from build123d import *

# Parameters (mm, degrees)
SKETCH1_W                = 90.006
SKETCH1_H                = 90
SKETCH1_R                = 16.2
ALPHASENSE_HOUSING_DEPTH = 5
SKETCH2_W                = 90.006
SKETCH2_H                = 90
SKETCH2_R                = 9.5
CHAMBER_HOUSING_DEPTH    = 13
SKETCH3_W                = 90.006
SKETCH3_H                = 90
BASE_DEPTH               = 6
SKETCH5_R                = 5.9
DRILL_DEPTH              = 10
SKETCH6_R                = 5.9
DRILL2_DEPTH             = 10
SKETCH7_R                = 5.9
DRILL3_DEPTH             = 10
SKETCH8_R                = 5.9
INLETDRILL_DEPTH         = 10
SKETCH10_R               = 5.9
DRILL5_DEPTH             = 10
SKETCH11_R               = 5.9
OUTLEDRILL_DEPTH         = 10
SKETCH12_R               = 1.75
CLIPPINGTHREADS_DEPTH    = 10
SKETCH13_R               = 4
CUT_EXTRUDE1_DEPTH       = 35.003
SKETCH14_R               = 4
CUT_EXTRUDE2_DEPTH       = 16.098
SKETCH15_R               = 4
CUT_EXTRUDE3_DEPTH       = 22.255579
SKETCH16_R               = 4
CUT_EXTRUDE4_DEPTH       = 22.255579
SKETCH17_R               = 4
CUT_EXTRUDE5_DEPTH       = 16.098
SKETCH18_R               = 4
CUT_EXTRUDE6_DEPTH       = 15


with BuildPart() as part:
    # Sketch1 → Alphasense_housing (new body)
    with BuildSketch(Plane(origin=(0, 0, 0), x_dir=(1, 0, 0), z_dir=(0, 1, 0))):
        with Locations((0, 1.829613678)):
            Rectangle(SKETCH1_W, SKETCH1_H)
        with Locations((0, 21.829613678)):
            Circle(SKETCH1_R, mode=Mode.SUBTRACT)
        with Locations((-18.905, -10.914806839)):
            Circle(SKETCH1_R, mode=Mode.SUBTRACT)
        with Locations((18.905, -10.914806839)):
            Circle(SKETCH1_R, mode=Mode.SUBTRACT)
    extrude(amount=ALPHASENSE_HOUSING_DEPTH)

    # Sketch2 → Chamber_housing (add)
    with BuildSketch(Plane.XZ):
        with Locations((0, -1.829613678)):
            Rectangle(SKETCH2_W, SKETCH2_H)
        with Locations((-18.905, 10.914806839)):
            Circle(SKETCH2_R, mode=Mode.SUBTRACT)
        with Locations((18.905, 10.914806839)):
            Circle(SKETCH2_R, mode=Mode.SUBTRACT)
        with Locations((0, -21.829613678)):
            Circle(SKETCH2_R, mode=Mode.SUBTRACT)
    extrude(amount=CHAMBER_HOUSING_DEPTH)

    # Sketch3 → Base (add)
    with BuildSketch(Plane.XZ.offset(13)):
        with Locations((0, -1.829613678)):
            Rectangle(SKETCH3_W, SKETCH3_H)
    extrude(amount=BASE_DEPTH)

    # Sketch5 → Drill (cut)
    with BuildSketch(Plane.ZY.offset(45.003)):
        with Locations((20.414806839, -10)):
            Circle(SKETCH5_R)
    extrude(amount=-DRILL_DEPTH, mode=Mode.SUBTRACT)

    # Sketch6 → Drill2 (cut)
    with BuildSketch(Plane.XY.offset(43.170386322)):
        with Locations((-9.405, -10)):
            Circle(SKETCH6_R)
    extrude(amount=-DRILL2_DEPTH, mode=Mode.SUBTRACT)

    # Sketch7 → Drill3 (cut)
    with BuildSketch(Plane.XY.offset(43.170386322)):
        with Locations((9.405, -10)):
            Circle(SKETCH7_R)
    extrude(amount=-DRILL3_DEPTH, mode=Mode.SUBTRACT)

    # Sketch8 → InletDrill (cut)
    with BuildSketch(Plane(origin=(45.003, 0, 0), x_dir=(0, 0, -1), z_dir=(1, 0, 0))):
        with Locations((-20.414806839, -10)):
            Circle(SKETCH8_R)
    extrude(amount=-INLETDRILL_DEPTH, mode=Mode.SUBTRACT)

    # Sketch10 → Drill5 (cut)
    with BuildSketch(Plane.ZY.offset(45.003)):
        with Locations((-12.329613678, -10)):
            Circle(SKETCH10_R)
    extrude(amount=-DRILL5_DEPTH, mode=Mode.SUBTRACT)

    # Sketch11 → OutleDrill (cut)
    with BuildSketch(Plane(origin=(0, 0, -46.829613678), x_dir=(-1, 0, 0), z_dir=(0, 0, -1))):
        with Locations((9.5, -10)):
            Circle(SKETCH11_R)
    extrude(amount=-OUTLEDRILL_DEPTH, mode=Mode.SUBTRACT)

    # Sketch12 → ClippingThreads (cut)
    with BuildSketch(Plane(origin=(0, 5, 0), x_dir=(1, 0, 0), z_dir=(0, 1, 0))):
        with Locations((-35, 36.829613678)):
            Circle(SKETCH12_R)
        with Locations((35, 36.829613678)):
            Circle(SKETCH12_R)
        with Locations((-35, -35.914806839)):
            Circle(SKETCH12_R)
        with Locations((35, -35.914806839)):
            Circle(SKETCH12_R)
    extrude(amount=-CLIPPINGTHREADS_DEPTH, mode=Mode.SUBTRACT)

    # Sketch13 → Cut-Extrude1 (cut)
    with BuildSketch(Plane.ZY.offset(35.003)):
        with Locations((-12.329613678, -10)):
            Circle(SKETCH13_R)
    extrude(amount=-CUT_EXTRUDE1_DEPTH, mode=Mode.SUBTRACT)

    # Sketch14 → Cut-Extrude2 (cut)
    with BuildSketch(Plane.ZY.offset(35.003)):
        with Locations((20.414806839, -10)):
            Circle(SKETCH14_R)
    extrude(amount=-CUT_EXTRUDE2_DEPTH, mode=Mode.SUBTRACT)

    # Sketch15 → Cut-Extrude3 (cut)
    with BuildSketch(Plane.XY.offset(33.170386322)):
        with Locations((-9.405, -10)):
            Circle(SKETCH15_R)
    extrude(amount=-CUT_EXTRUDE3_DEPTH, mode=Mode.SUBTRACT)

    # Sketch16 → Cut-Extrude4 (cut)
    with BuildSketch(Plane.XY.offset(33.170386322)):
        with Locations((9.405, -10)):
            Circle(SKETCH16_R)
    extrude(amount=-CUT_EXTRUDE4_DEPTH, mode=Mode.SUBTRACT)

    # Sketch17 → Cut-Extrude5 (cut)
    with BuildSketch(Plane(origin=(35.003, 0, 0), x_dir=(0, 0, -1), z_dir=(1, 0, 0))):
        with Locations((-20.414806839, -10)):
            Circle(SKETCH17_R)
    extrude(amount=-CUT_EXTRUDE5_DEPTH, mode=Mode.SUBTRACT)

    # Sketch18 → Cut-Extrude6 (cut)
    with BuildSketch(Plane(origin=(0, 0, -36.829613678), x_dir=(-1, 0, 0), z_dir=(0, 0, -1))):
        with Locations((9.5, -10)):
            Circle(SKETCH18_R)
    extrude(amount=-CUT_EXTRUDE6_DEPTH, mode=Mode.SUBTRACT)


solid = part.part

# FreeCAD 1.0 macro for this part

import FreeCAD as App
import Part
import Sketcher

V = App.Vector

doc = App.newDocument("Part")
params = doc.addObject("Spreadsheet::Sheet", "Params")
for row, (alias, value) in enumerate([
    ("sketch1_diameter", "32.4 mm"),
    ("sketch1_height", "90 mm"),
    ("pad1_length", "5 mm"),
    ("sketch2_diameter", "19 mm"),
    ("sketch2_height", "90 mm"),
    ("pad2_length", "13 mm"),
    ("sketch3_height", "90 mm"),
    ("pad3_length", "6 mm"),
    ("sketch4_diameter", "11.8 mm"),
    ("pocket1_length", "10 mm"),
    ("sketch5_diameter", "11.8 mm"),
    ("pocket2_length", "10 mm"),
    ("sketch6_diameter", "11.8 mm"),
    ("pocket3_length", "10 mm"),
    ("sketch7_diameter", "11.8 mm"),
    ("pocket4_length", "10 mm"),
    ("sketch8_diameter", "11.8 mm"),
    ("pocket5_length", "10 mm"),
    ("sketch9_diameter", "11.8 mm"),
    ("pocket6_length", "10 mm"),
    ("sketch10_diameter", "3.5 mm"),
    ("pocket7_length", "10 mm"),
    ("sketch11_diameter", "8 mm"),
    ("pocket8_length", "35.003 mm"),
    ("sketch12_diameter", "8 mm"),
    ("pocket9_length", "16.098 mm"),
    ("sketch13_diameter", "8 mm"),
    ("pocket10_length", "22.255579 mm"),
    ("sketch14_diameter", "8 mm"),
    ("pocket11_length", "22.255579 mm"),
    ("sketch15_diameter", "8 mm"),
    ("pocket12_length", "16.098 mm"),
    ("sketch16_diameter", "8 mm"),
    ("pocket13_length", "15 mm"),
], start=1):
    params.set(f"A{row}", alias)
    params.set(f"B{row}", "=" + value)
    params.setAlias(f"B{row}", alias)

body = doc.addObject("PartDesign::Body", "Body")

# Sketch on XZ plane
sketch1 = body.newObject("Sketcher::SketchObject", "Sketch")
sketch1.AttachmentSupport = (doc.getObject("XZ_Plane"), [""])
sketch1.MapMode = "FlatFace"
sketch1.addGeometry([
    Part.LineSegment(V(-45.003, -46.829614, 0), V(-45.003, 43.170386, 0)),  # 0
    Part.LineSegment(V(-45.003, 43.170386, 0), V(45.003, 43.170386, 0)),  # 1
    Part.LineSegment(V(45.003, 43.170386, 0), V(45.003, -46.829614, 0)),  # 2
    Part.LineSegment(V(45.003, -46.829614, 0), V(-45.003, -46.829614, 0)),  # 3
    Part.Circle(V(-18.905, 10.914807, 0), V(0, 0, 1), 16.2),  # 4
    Part.Circle(V(18.905, 10.914807, 0), V(0, 0, 1), 16.2),  # 5
    Part.Circle(V(0, -21.829614, 0), V(0, 0, 1), 16.2),  # 6
], False)
sketch1.addConstraint([
    Sketcher.Constraint("Coincident", 0, 2, 1, 1),
    Sketcher.Constraint("Coincident", 1, 2, 2, 1),
    Sketcher.Constraint("Coincident", 2, 2, 3, 1),
    Sketcher.Constraint("Coincident", 3, 2, 0, 1),
    Sketcher.Constraint("Vertical", 0),
    Sketcher.Constraint("Horizontal", 1),
    Sketcher.Constraint("Vertical", 2),
    Sketcher.Constraint("Horizontal", 3),
    Sketcher.Constraint("Equal", 4, 5),
    Sketcher.Constraint("Equal", 5, 6),
    Sketcher.Constraint("Symmetric", 4, 3, 5, 3, -2),
    Sketcher.Constraint("PointOnObject", 6, 3, -2),
    Sketcher.Constraint("Diameter", 4, 32.4),
    Sketcher.Constraint("DistanceY", 0, 1, 0, 2, 90.0),
    Sketcher.Constraint("DistanceY", 6, 3, 0, 2, 65.0),
    Sketcher.Constraint("DistanceX", 1, 1, 1, 2, 90.006),
    Sketcher.Constraint("DistanceX", 4, 3, 5, 3, 37.81),
    Sketcher.Constraint("DistanceX", 0, 2, -1, 1, 45.003),
    Sketcher.Constraint("DistanceY", 6, 3, 4, 3, 32.744421),
    Sketcher.Constraint("DistanceY", -1, 1, 4, 3, 10.914807),
])
sketch1.setExpression("Constraints[12]", "Params.sketch1_diameter")
sketch1.setExpression("Constraints[13]", "Params.sketch1_height")
pad1 = body.newObject("PartDesign::Pad", "Pad")
pad1.Profile = sketch1
pad1.setExpression("Length", "Params.pad1_length")
pad1.Reversed = True

# Sketch on XZ plane
sketch2 = body.newObject("Sketcher::SketchObject", "Sketch001")
sketch2.AttachmentSupport = (doc.getObject("XZ_Plane"), [""])
sketch2.MapMode = "FlatFace"
sketch2.addGeometry([
    Part.LineSegment(V(-45.003, 43.170386, 0), V(-45.003, -46.829614, 0)),  # 0
    Part.LineSegment(V(-45.003, -46.829614, 0), V(45.003, -46.829614, 0)),  # 1
    Part.LineSegment(V(45.003, -46.829614, 0), V(45.003, 43.170386, 0)),  # 2
    Part.LineSegment(V(45.003, 43.170386, 0), V(-45.003, 43.170386, 0)),  # 3
    Part.Circle(V(0, -21.829614, 0), V(0, 0, 1), 9.5),  # 4
    Part.Circle(V(-18.905, 10.914807, 0), V(0, 0, 1), 9.5),  # 5
    Part.Circle(V(18.905, 10.914807, 0), V(0, 0, 1), 9.5),  # 6
], False)
sketch2.addConstraint([
    Sketcher.Constraint("Coincident", 0, 2, 1, 1),
    Sketcher.Constraint("Coincident", 1, 2, 2, 1),
    Sketcher.Constraint("Coincident", 2, 2, 3, 1),
    Sketcher.Constraint("Coincident", 3, 2, 0, 1),
    Sketcher.Constraint("Vertical", 0),
    Sketcher.Constraint("Horizontal", 1),
    Sketcher.Constraint("Vertical", 2),
    Sketcher.Constraint("Horizontal", 3),
    Sketcher.Constraint("Equal", 4, 5),
    Sketcher.Constraint("Equal", 5, 6),
    Sketcher.Constraint("Symmetric", 5, 3, 6, 3, -2),
    Sketcher.Constraint("PointOnObject", 4, 3, -2),
    Sketcher.Constraint("Diameter", 4, 19.0),
    Sketcher.Constraint("DistanceY", 0, 2, 0, 1, 90.0),
    Sketcher.Constraint("DistanceY", 0, 2, 4, 3, 25.0),
    Sketcher.Constraint("DistanceX", 1, 1, 1, 2, 90.006),
    Sketcher.Constraint("DistanceX", 5, 3, 6, 3, 37.81),
    Sketcher.Constraint("DistanceX", 0, 2, -1, 1, 45.003),
    Sketcher.Constraint("DistanceY", 4, 3, 5, 3, 32.744421),
    Sketcher.Constraint("DistanceY", 4, 3, -1, 1, 21.829614),
])
sketch2.setExpression("Constraints[12]", "Params.sketch2_diameter")
sketch2.setExpression("Constraints[13]", "Params.sketch2_height")
pad2 = body.newObject("PartDesign::Pad", "Pad001")
pad2.Profile = sketch2
pad2.setExpression("Length", "Params.pad2_length")

# Sketch on XZ plane
sketch3 = body.newObject("Sketcher::SketchObject", "Sketch002")
sketch3.AttachmentSupport = (doc.getObject("XZ_Plane"), [""])
sketch3.MapMode = "FlatFace"
sketch3.AttachmentOffset = App.Placement(V(0, 0, 13), App.Rotation())
sketch3.addGeometry([
    Part.LineSegment(V(-45.003, 43.170386, 0), V(-45.003, -46.829614, 0)),
    Part.LineSegment(V(-45.003, -46.829614, 0), V(45.003, -46.829614, 0)),
    Part.LineSegment(V(45.003, -46.829614, 0), V(45.003, 43.170386, 0)),
    Part.LineSegment(V(45.003, 43.170386, 0), V(-45.003, 43.170386, 0)),
], False)
sketch3.addConstraint([
    Sketcher.Constraint("Coincident", 0, 2, 1, 1),
    Sketcher.Constraint("Coincident", 1, 2, 2, 1),
    Sketcher.Constraint("Coincident", 2, 2, 3, 1),
    Sketcher.Constraint("Coincident", 3, 2, 0, 1),
    Sketcher.Constraint("Vertical", 0),
    Sketcher.Constraint("Horizontal", 1),
    Sketcher.Constraint("Vertical", 2),
    Sketcher.Constraint("Horizontal", 3),
    Sketcher.Constraint("DistanceY", 0, 2, 0, 1, 90.0),
    Sketcher.Constraint("DistanceX", 1, 1, 1, 2, 90.006),
    Sketcher.Constraint("DistanceX", 0, 2, -1, 1, 45.003),
    Sketcher.Constraint("DistanceY", 0, 2, -1, 1, 46.829614),
])
sketch3.setExpression("Constraints[8]", "Params.sketch3_height")
pad3 = body.newObject("PartDesign::Pad", "Pad002")
pad3.Profile = sketch3
pad3.setExpression("Length", "Params.pad3_length")

# Sketch on YZ plane
sketch4 = body.newObject("Sketcher::SketchObject", "Sketch003")
sketch4.AttachmentSupport = (doc.getObject("YZ_Plane"), [""])
sketch4.MapMode = "FlatFace"
sketch4.AttachmentOffset = App.Placement(V(0, 0, -45.003), App.Rotation())
sketch4.addGeometry(Part.Circle(V(-10, 20.414807, 0), V(0, 0, 1), 5.9), False)
sketch4.addConstraint([
    Sketcher.Constraint("Diameter", 0, 11.8),
    Sketcher.Constraint("DistanceX", 0, 3, -1, 1, 10.0),
    Sketcher.Constraint("DistanceY", -1, 1, 0, 3, 20.414807),
])
sketch4.setExpression("Constraints[0]", "Params.sketch4_diameter")
pocket1 = body.newObject("PartDesign::Pocket", "Pocket")
pocket1.Profile = sketch4
pocket1.setExpression("Length", "Params.pocket1_length")
pocket1.Reversed = True

# Sketch on XY plane
sketch5 = body.newObject("Sketcher::SketchObject", "Sketch004")
sketch5.AttachmentSupport = (doc.getObject("XY_Plane"), [""])
sketch5.MapMode = "FlatFace"
sketch5.AttachmentOffset = App.Placement(V(0, 0, 43.170386), App.Rotation())
sketch5.addGeometry(Part.Circle(V(-9.405, -10, 0), V(0, 0, 1), 5.9), False)
sketch5.addConstraint([
    Sketcher.Constraint("Diameter", 0, 11.8),
    Sketcher.Constraint("DistanceY", 0, 3, -1, 1, 10.0),
    Sketcher.Constraint("DistanceX", 0, 3, -1, 1, 9.405),
])
sketch5.setExpression("Constraints[0]", "Params.sketch5_diameter")
pocket2 = body.newObject("PartDesign::Pocket", "Pocket001")
pocket2.Profile = sketch5
pocket2.setExpression("Length", "Params.pocket2_length")

# Sketch on XY plane
sketch6 = body.newObject("Sketcher::SketchObject", "Sketch005")
sketch6.AttachmentSupport = (doc.getObject("XY_Plane"), [""])
sketch6.MapMode = "FlatFace"
sketch6.AttachmentOffset = App.Placement(V(0, 0, 43.170386), App.Rotation())
sketch6.addGeometry(Part.Circle(V(9.405, -10, 0), V(0, 0, 1), 5.9), False)
sketch6.addConstraint([
    Sketcher.Constraint("Diameter", 0, 11.8),
    Sketcher.Constraint("DistanceY", 0, 3, -1, 1, 10.0),
    Sketcher.Constraint("DistanceX", -1, 1, 0, 3, 9.405),
])
sketch6.setExpression("Constraints[0]", "Params.sketch6_diameter")
pocket3 = body.newObject("PartDesign::Pocket", "Pocket002")
pocket3.Profile = sketch6
pocket3.setExpression("Length", "Params.pocket3_length")

# Sketch on YZ plane
sketch7 = body.newObject("Sketcher::SketchObject", "Sketch006")
sketch7.AttachmentSupport = (doc.getObject("YZ_Plane"), [""])
sketch7.MapMode = "FlatFace"
sketch7.AttachmentOffset = App.Placement(V(0, 0, 45.003), App.Rotation())
sketch7.addGeometry(Part.Circle(V(-10, 20.414807, 0), V(0, 0, 1), 5.9), False)
sketch7.addConstraint([
    Sketcher.Constraint("Diameter", 0, 11.8),
    Sketcher.Constraint("DistanceX", 0, 3, -1, 1, 10.0),
    Sketcher.Constraint("DistanceY", -1, 1, 0, 3, 20.414807),
])
sketch7.setExpression("Constraints[0]", "Params.sketch7_diameter")
pocket4 = body.newObject("PartDesign::Pocket", "Pocket003")
pocket4.Profile = sketch7
pocket4.setExpression("Length", "Params.pocket4_length")

# Sketch on YZ plane
sketch8 = body.newObject("Sketcher::SketchObject", "Sketch007")
sketch8.AttachmentSupport = (doc.getObject("YZ_Plane"), [""])
sketch8.MapMode = "FlatFace"
sketch8.AttachmentOffset = App.Placement(V(0, 0, -45.003), App.Rotation())
sketch8.addGeometry(Part.Circle(V(-10, -12.329614, 0), V(0, 0, 1), 5.9), False)
sketch8.addConstraint([
    Sketcher.Constraint("Diameter", 0, 11.8),
    Sketcher.Constraint("DistanceX", 0, 3, -1, 1, 10.0),
    Sketcher.Constraint("DistanceY", 0, 3, -1, 1, 12.329614),
])
sketch8.setExpression("Constraints[0]", "Params.sketch8_diameter")
pocket5 = body.newObject("PartDesign::Pocket", "Pocket004")
pocket5.Profile = sketch8
pocket5.setExpression("Length", "Params.pocket5_length")
pocket5.Reversed = True

# Sketch on XY plane
sketch9 = body.newObject("Sketcher::SketchObject", "Sketch008")
sketch9.AttachmentSupport = (doc.getObject("XY_Plane"), [""])
sketch9.MapMode = "FlatFace"
sketch9.AttachmentOffset = App.Placement(V(0, 0, -46.829614), App.Rotation())
sketch9.addGeometry(Part.Circle(V(-9.5, -10, 0), V(0, 0, 1), 5.9), False)
sketch9.addConstraint([
    Sketcher.Constraint("Diameter", 0, 11.8),
    Sketcher.Constraint("DistanceY", 0, 3, -1, 1, 10.0),
    Sketcher.Constraint("DistanceX", 0, 3, -1, 1, 9.5),
])
sketch9.setExpression("Constraints[0]", "Params.sketch9_diameter")
pocket6 = body.newObject("PartDesign::Pocket", "Pocket005")
pocket6.Profile = sketch9
pocket6.setExpression("Length", "Params.pocket6_length")
pocket6.Reversed = True

# Sketch on XZ plane
sketch10 = body.newObject("Sketcher::SketchObject", "Sketch009")
sketch10.AttachmentSupport = (doc.getObject("XZ_Plane"), [""])
sketch10.MapMode = "FlatFace"
sketch10.AttachmentOffset = App.Placement(V(0, 0, -5), App.Rotation())
sketch10.addGeometry([
    Part.Circle(V(-35, -36.829614, 0), V(0, 0, 1), 1.75),
    Part.Circle(V(35, -36.829614, 0), V(0, 0, 1), 1.75),
    Part.Circle(V(-35, 35.914807, 0), V(0, 0, 1), 1.75),
    Part.Circle(V(35, 35.914807, 0), V(0, 0, 1), 1.75),
], False)
sketch10.addConstraint([
    Sketcher.Constraint("Equal", 0, 1),
    Sketcher.Constraint("Equal", 1, 2),
    Sketcher.Constraint("Equal", 2, 3),
    Sketcher.Constraint("Symmetric", 0, 3, 1, 3, -2),
    Sketcher.Constraint("Symmetric", 2, 3, 3, 3, -2),
    Sketcher.Constraint("Vertical", 0, 3, 2, 3),
    Sketcher.Constraint("Diameter", 0, 3.5),
    Sketcher.Constraint("DistanceX", 0, 3, -1, 1, 35.0),
    Sketcher.Constraint("DistanceY", 0, 3, 2, 3, 72.744421),
    Sketcher.Constraint("DistanceY", 0, 3, -1, 1, 36.829614),
])
sketch10.setExpression("Constraints[6]", "Params.sketch10_diameter")
pocket7 = body.newObject("PartDesign::Pocket", "Pocket006")
pocket7.Profile = sketch10
pocket7.setExpression("Length", "Params.pocket7_length")
pocket7.Reversed = True

# Sketch on YZ plane
sketch11 = body.newObject("Sketcher::SketchObject", "Sketch010")
sketch11.AttachmentSupport = (doc.getObject("YZ_Plane"), [""])
sketch11.MapMode = "FlatFace"
sketch11.AttachmentOffset = App.Placement(V(0, 0, -35.003), App.Rotation())
sketch11.addGeometry(Part.Circle(V(-10, -12.329614, 0), V(0, 0, 1), 4), False)
sketch11.addConstraint([
    Sketcher.Constraint("Diameter", 0, 8.0),
    Sketcher.Constraint("DistanceX", 0, 3, -1, 1, 10.0),
    Sketcher.Constraint("DistanceY", 0, 3, -1, 1, 12.329614),
])
sketch11.setExpression("Constraints[0]", "Params.sketch11_diameter")
pocket8 = body.newObject("PartDesign::Pocket", "Pocket007")
pocket8.Profile = sketch11
pocket8.setExpression("Length", "Params.pocket8_length")
pocket8.Reversed = True

# Sketch on YZ plane
sketch12 = body.newObject("Sketcher::SketchObject", "Sketch011")
sketch12.AttachmentSupport = (doc.getObject("YZ_Plane"), [""])
sketch12.MapMode = "FlatFace"
sketch12.AttachmentOffset = App.Placement(V(0, 0, -35.003), App.Rotation())
sketch12.addGeometry(Part.Circle(V(-10, 20.414807, 0), V(0, 0, 1), 4), False)
sketch12.addConstraint([
    Sketcher.Constraint("Diameter", 0, 8.0),
    Sketcher.Constraint("DistanceX", 0, 3, -1, 1, 10.0),
    Sketcher.Constraint("DistanceY", -1, 1, 0, 3, 20.414807),
])
sketch12.setExpression("Constraints[0]", "Params.sketch12_diameter")
pocket9 = body.newObject("PartDesign::Pocket", "Pocket008")
pocket9.Profile = sketch12
pocket9.setExpression("Length", "Params.pocket9_length")
pocket9.Reversed = True

# Sketch on XY plane
sketch13 = body.newObject("Sketcher::SketchObject", "Sketch012")
sketch13.AttachmentSupport = (doc.getObject("XY_Plane"), [""])
sketch13.MapMode = "FlatFace"
sketch13.AttachmentOffset = App.Placement(V(0, 0, 33.170386), App.Rotation())
sketch13.addGeometry(Part.Circle(V(-9.405, -10, 0), V(0, 0, 1), 4), False)
sketch13.addConstraint([
    Sketcher.Constraint("Diameter", 0, 8.0),
    Sketcher.Constraint("DistanceY", 0, 3, -1, 1, 10.0),
    Sketcher.Constraint("DistanceX", 0, 3, -1, 1, 9.405),
])
sketch13.setExpression("Constraints[0]", "Params.sketch13_diameter")
pocket10 = body.newObject("PartDesign::Pocket", "Pocket009")
pocket10.Profile = sketch13
pocket10.setExpression("Length", "Params.pocket10_length")

# Sketch on XY plane
sketch14 = body.newObject("Sketcher::SketchObject", "Sketch013")
sketch14.AttachmentSupport = (doc.getObject("XY_Plane"), [""])
sketch14.MapMode = "FlatFace"
sketch14.AttachmentOffset = App.Placement(V(0, 0, 33.170386), App.Rotation())
sketch14.addGeometry(Part.Circle(V(9.405, -10, 0), V(0, 0, 1), 4), False)
sketch14.addConstraint([
    Sketcher.Constraint("Diameter", 0, 8.0),
    Sketcher.Constraint("DistanceY", 0, 3, -1, 1, 10.0),
    Sketcher.Constraint("DistanceX", -1, 1, 0, 3, 9.405),
])
sketch14.setExpression("Constraints[0]", "Params.sketch14_diameter")
pocket11 = body.newObject("PartDesign::Pocket", "Pocket010")
pocket11.Profile = sketch14
pocket11.setExpression("Length", "Params.pocket11_length")

# Sketch on YZ plane
sketch15 = body.newObject("Sketcher::SketchObject", "Sketch014")
sketch15.AttachmentSupport = (doc.getObject("YZ_Plane"), [""])
sketch15.MapMode = "FlatFace"
sketch15.AttachmentOffset = App.Placement(V(0, 0, 35.003), App.Rotation())
sketch15.addGeometry(Part.Circle(V(-10, 20.414807, 0), V(0, 0, 1), 4), False)
sketch15.addConstraint([
    Sketcher.Constraint("Diameter", 0, 8.0),
    Sketcher.Constraint("DistanceX", 0, 3, -1, 1, 10.0),
    Sketcher.Constraint("DistanceY", -1, 1, 0, 3, 20.414807),
])
sketch15.setExpression("Constraints[0]", "Params.sketch15_diameter")
pocket12 = body.newObject("PartDesign::Pocket", "Pocket011")
pocket12.Profile = sketch15
pocket12.setExpression("Length", "Params.pocket12_length")

# Sketch on XY plane
sketch16 = body.newObject("Sketcher::SketchObject", "Sketch015")
sketch16.AttachmentSupport = (doc.getObject("XY_Plane"), [""])
sketch16.MapMode = "FlatFace"
sketch16.AttachmentOffset = App.Placement(V(0, 0, -36.829614), App.Rotation())
sketch16.addGeometry(Part.Circle(V(-9.5, -10, 0), V(0, 0, 1), 4), False)
sketch16.addConstraint([
    Sketcher.Constraint("Diameter", 0, 8.0),
    Sketcher.Constraint("DistanceY", 0, 3, -1, 1, 10.0),
    Sketcher.Constraint("DistanceX", 0, 3, -1, 1, 9.5),
])
sketch16.setExpression("Constraints[0]", "Params.sketch16_diameter")
pocket13 = body.newObject("PartDesign::Pocket", "Pocket012")
pocket13.Profile = sketch16
pocket13.setExpression("Length", "Params.pocket13_length")
pocket13.Reversed = True

doc.recompute()
